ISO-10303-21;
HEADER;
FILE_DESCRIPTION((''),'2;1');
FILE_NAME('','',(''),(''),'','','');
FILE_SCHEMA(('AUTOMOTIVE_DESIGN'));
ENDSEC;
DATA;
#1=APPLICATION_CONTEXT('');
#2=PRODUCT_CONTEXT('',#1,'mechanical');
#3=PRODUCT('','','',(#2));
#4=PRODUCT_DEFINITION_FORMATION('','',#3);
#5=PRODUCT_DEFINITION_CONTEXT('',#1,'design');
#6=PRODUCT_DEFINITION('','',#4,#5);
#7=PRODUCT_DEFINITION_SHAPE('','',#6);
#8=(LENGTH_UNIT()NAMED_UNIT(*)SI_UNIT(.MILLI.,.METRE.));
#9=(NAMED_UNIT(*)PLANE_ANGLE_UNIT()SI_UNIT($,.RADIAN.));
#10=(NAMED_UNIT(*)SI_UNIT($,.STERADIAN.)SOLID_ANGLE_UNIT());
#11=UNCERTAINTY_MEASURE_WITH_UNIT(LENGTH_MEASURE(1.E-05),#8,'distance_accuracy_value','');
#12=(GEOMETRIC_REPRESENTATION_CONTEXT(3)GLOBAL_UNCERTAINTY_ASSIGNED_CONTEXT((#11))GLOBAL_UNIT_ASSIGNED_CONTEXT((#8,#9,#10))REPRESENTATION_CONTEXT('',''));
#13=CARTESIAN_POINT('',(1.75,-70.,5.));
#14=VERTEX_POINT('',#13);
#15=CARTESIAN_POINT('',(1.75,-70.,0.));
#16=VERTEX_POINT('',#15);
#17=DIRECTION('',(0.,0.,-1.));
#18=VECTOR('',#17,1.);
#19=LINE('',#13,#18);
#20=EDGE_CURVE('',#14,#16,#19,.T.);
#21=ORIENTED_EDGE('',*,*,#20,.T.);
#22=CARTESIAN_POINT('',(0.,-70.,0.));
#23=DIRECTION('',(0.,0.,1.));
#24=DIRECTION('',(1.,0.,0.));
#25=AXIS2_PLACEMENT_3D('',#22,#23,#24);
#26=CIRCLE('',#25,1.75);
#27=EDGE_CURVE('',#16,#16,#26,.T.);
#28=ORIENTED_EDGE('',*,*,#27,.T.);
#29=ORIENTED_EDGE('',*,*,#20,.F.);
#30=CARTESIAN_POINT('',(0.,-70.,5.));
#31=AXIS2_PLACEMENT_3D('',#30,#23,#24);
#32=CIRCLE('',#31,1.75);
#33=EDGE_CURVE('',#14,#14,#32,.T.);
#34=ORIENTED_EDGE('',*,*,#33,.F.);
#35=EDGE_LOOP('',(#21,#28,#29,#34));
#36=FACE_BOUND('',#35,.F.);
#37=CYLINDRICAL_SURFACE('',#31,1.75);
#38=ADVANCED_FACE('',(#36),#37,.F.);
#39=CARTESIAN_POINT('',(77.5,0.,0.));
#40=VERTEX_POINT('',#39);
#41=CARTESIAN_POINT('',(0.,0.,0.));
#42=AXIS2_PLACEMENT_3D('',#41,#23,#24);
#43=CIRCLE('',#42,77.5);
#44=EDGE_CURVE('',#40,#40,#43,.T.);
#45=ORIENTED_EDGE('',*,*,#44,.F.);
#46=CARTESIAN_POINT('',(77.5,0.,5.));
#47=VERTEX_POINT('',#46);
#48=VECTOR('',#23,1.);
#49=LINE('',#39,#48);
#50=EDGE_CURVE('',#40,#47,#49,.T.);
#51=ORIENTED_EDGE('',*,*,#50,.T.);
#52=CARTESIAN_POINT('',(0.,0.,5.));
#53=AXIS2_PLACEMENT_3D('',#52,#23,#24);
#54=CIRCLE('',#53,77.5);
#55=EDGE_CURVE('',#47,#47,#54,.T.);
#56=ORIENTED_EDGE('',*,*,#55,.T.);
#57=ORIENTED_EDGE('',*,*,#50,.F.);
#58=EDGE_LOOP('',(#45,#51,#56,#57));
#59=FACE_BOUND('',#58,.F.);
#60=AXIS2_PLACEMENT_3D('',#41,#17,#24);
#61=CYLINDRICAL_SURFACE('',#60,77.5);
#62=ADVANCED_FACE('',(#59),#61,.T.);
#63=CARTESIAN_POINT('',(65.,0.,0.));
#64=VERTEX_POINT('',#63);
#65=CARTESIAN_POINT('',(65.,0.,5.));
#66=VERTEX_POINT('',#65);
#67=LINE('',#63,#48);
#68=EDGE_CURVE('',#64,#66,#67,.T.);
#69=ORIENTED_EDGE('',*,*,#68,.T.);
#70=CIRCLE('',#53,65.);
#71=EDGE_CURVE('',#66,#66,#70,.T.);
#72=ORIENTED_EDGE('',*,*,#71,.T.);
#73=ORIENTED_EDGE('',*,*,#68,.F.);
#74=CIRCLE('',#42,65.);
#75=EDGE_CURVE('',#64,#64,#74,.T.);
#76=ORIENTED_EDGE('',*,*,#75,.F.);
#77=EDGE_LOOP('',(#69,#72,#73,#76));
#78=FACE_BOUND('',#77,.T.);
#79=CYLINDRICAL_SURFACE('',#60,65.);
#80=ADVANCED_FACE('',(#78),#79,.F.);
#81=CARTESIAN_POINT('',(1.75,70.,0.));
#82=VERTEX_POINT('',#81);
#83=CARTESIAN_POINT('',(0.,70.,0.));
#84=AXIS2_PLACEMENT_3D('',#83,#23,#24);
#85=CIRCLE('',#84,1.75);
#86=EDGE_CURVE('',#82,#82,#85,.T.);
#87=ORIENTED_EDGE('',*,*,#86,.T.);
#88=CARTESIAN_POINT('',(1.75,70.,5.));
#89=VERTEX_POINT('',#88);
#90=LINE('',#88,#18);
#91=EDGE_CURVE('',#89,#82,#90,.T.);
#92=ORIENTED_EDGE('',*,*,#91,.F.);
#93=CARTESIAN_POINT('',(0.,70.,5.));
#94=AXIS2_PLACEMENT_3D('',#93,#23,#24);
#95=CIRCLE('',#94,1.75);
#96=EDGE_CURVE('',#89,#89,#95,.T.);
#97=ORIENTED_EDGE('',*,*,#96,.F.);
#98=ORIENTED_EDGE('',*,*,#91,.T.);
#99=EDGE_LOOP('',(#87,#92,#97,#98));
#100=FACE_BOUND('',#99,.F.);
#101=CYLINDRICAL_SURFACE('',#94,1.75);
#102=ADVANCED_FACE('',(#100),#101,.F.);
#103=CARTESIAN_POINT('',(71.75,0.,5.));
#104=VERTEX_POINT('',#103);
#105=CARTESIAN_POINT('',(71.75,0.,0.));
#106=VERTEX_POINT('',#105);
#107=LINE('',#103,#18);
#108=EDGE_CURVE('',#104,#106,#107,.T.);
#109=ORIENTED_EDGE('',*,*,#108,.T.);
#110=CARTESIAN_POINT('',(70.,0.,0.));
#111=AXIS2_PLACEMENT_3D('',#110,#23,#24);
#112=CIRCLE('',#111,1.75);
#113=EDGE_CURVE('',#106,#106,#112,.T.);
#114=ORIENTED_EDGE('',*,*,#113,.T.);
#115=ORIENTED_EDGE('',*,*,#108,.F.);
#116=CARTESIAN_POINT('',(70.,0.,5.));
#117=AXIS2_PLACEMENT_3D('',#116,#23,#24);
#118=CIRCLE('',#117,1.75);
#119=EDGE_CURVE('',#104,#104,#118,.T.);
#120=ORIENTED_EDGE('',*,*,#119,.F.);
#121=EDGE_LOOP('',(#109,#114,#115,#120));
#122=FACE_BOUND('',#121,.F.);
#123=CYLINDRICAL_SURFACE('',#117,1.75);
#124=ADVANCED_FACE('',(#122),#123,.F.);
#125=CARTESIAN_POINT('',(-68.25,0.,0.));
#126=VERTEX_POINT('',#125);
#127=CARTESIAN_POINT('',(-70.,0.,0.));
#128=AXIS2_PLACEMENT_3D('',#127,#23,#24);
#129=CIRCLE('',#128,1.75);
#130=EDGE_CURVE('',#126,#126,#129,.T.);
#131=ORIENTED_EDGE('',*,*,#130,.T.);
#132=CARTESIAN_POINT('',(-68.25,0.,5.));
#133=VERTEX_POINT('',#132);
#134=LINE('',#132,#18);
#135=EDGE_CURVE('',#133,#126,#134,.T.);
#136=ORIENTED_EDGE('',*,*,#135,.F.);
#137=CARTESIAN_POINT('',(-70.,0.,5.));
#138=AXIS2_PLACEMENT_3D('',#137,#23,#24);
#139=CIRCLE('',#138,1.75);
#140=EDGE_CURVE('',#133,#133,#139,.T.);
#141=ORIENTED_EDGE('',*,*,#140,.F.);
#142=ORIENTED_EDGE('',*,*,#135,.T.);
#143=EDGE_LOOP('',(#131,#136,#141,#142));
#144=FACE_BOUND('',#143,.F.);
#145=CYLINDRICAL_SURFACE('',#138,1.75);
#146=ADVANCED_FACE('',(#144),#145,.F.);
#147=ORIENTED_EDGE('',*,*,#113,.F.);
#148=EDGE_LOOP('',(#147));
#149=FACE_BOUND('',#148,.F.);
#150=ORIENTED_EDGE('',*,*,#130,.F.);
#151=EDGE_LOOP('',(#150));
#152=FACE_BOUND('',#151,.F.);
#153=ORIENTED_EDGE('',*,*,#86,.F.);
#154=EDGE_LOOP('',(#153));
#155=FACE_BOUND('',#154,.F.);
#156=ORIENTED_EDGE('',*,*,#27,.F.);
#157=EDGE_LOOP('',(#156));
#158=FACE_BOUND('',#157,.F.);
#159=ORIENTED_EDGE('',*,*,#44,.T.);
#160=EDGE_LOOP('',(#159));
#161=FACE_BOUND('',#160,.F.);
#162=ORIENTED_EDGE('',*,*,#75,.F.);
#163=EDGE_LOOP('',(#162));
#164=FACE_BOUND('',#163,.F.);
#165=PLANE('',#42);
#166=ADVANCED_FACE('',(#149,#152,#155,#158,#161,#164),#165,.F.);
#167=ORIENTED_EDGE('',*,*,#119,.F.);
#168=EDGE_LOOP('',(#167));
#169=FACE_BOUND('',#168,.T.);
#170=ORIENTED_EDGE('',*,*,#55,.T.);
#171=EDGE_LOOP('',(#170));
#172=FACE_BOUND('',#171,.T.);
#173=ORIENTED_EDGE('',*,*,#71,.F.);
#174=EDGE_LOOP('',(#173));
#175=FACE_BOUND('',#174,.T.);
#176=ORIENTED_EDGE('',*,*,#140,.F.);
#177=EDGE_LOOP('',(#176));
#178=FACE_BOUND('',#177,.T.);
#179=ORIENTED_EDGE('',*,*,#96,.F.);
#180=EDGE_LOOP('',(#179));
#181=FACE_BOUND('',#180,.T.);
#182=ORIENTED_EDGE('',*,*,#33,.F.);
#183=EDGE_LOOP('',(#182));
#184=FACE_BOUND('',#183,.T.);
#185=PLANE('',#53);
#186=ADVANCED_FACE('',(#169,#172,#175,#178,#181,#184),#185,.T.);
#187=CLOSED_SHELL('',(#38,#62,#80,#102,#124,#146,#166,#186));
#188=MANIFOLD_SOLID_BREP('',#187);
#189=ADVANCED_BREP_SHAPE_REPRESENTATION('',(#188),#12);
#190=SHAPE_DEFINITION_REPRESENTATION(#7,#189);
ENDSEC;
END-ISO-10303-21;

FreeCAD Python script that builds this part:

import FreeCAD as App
import Part
import Sketcher

V = App.Vector
Q = App.Units.Quantity

doc = App.newDocument("Part")
body = doc.addObject("PartDesign::Body", "Body")

# Sketch on XY plane
sketch1 = body.newObject("Sketcher::SketchObject", "Sketch")
sketch1.AttachmentSupport = (doc.getObject("XY_Plane"), [""])
sketch1.MapMode = "FlatFace"
sketch1.addGeometry(Part.Circle(V(0, 0, 0), V(0, 0, 1), 78), False)
sketch1.addGeometry(Part.Circle(V(0, 0, 0), V(0, 0, 1), 65), False)
sketch1.addConstraint(Sketcher.Constraint("Coincident", 0, 3, -1, 1))
sketch1.addConstraint(Sketcher.Constraint("Coincident", 1, 3, -1, 1))
sketch1.addConstraint(Sketcher.Constraint("Diameter", 0, Q("155 mm")))
sketch1.addConstraint(Sketcher.Constraint("Diameter", 1, Q("130 mm")))
pad1 = body.newObject("PartDesign::Pad", "Pad")
pad1.Profile = sketch1
pad1.Length = 5

# Sketch on XY plane
sketch2 = body.newObject("Sketcher::SketchObject", "Sketch001")
sketch2.AttachmentSupport = (doc.getObject("XY_Plane"), [""])
sketch2.MapMode = "FlatFace"
sketch2.AttachmentOffset = App.Placement(V(0, 0, 5), App.Rotation())
sketch2.addGeometry(Part.Circle(V(0, 70, 0), V(0, 0, 1), 1.8), False)
sketch2.addGeometry(Part.Circle(V(-70, 0, 0), V(0, 0, 1), 1.8), False)
sketch2.addGeometry(Part.Circle(V(0, -70, 0), V(0, 0, 1), 1.8), False)
sketch2.addGeometry(Part.Circle(V(70, 0, 0), V(0, 0, 1), 1.8), False)
sketch2.addConstraint(Sketcher.Constraint("Equal", 0, 1))
sketch2.addConstraint(Sketcher.Constraint("Equal", 1, 2))
sketch2.addConstraint(Sketcher.Constraint("Equal", 2, 3))
sketch2.addConstraint(Sketcher.Constraint("Symmetric", 0, 3, 2, 3, -1, 1))
sketch2.addConstraint(Sketcher.Constraint("Symmetric", 1, 3, 3, 3, -1, 1))
sketch2.addConstraint(Sketcher.Constraint("PointOnObject", 0, 3, -2))
sketch2.addConstraint(Sketcher.Constraint("PointOnObject", 1, 3, -1))
sketch2.addConstraint(Sketcher.Constraint("Diameter", 0, Q("3.5 mm")))
sketch2.addConstraint(Sketcher.Constraint("DistanceY", -1, 1, 0, 3, Q("70 mm")))
sketch2.addConstraint(Sketcher.Constraint("DistanceX", 1, 3, -1, 1, Q("70 mm")))
pocket1 = body.newObject("PartDesign::Pocket", "Pocket")
pocket1.Profile = sketch2
pocket1.Length = 5

doc.recompute()
